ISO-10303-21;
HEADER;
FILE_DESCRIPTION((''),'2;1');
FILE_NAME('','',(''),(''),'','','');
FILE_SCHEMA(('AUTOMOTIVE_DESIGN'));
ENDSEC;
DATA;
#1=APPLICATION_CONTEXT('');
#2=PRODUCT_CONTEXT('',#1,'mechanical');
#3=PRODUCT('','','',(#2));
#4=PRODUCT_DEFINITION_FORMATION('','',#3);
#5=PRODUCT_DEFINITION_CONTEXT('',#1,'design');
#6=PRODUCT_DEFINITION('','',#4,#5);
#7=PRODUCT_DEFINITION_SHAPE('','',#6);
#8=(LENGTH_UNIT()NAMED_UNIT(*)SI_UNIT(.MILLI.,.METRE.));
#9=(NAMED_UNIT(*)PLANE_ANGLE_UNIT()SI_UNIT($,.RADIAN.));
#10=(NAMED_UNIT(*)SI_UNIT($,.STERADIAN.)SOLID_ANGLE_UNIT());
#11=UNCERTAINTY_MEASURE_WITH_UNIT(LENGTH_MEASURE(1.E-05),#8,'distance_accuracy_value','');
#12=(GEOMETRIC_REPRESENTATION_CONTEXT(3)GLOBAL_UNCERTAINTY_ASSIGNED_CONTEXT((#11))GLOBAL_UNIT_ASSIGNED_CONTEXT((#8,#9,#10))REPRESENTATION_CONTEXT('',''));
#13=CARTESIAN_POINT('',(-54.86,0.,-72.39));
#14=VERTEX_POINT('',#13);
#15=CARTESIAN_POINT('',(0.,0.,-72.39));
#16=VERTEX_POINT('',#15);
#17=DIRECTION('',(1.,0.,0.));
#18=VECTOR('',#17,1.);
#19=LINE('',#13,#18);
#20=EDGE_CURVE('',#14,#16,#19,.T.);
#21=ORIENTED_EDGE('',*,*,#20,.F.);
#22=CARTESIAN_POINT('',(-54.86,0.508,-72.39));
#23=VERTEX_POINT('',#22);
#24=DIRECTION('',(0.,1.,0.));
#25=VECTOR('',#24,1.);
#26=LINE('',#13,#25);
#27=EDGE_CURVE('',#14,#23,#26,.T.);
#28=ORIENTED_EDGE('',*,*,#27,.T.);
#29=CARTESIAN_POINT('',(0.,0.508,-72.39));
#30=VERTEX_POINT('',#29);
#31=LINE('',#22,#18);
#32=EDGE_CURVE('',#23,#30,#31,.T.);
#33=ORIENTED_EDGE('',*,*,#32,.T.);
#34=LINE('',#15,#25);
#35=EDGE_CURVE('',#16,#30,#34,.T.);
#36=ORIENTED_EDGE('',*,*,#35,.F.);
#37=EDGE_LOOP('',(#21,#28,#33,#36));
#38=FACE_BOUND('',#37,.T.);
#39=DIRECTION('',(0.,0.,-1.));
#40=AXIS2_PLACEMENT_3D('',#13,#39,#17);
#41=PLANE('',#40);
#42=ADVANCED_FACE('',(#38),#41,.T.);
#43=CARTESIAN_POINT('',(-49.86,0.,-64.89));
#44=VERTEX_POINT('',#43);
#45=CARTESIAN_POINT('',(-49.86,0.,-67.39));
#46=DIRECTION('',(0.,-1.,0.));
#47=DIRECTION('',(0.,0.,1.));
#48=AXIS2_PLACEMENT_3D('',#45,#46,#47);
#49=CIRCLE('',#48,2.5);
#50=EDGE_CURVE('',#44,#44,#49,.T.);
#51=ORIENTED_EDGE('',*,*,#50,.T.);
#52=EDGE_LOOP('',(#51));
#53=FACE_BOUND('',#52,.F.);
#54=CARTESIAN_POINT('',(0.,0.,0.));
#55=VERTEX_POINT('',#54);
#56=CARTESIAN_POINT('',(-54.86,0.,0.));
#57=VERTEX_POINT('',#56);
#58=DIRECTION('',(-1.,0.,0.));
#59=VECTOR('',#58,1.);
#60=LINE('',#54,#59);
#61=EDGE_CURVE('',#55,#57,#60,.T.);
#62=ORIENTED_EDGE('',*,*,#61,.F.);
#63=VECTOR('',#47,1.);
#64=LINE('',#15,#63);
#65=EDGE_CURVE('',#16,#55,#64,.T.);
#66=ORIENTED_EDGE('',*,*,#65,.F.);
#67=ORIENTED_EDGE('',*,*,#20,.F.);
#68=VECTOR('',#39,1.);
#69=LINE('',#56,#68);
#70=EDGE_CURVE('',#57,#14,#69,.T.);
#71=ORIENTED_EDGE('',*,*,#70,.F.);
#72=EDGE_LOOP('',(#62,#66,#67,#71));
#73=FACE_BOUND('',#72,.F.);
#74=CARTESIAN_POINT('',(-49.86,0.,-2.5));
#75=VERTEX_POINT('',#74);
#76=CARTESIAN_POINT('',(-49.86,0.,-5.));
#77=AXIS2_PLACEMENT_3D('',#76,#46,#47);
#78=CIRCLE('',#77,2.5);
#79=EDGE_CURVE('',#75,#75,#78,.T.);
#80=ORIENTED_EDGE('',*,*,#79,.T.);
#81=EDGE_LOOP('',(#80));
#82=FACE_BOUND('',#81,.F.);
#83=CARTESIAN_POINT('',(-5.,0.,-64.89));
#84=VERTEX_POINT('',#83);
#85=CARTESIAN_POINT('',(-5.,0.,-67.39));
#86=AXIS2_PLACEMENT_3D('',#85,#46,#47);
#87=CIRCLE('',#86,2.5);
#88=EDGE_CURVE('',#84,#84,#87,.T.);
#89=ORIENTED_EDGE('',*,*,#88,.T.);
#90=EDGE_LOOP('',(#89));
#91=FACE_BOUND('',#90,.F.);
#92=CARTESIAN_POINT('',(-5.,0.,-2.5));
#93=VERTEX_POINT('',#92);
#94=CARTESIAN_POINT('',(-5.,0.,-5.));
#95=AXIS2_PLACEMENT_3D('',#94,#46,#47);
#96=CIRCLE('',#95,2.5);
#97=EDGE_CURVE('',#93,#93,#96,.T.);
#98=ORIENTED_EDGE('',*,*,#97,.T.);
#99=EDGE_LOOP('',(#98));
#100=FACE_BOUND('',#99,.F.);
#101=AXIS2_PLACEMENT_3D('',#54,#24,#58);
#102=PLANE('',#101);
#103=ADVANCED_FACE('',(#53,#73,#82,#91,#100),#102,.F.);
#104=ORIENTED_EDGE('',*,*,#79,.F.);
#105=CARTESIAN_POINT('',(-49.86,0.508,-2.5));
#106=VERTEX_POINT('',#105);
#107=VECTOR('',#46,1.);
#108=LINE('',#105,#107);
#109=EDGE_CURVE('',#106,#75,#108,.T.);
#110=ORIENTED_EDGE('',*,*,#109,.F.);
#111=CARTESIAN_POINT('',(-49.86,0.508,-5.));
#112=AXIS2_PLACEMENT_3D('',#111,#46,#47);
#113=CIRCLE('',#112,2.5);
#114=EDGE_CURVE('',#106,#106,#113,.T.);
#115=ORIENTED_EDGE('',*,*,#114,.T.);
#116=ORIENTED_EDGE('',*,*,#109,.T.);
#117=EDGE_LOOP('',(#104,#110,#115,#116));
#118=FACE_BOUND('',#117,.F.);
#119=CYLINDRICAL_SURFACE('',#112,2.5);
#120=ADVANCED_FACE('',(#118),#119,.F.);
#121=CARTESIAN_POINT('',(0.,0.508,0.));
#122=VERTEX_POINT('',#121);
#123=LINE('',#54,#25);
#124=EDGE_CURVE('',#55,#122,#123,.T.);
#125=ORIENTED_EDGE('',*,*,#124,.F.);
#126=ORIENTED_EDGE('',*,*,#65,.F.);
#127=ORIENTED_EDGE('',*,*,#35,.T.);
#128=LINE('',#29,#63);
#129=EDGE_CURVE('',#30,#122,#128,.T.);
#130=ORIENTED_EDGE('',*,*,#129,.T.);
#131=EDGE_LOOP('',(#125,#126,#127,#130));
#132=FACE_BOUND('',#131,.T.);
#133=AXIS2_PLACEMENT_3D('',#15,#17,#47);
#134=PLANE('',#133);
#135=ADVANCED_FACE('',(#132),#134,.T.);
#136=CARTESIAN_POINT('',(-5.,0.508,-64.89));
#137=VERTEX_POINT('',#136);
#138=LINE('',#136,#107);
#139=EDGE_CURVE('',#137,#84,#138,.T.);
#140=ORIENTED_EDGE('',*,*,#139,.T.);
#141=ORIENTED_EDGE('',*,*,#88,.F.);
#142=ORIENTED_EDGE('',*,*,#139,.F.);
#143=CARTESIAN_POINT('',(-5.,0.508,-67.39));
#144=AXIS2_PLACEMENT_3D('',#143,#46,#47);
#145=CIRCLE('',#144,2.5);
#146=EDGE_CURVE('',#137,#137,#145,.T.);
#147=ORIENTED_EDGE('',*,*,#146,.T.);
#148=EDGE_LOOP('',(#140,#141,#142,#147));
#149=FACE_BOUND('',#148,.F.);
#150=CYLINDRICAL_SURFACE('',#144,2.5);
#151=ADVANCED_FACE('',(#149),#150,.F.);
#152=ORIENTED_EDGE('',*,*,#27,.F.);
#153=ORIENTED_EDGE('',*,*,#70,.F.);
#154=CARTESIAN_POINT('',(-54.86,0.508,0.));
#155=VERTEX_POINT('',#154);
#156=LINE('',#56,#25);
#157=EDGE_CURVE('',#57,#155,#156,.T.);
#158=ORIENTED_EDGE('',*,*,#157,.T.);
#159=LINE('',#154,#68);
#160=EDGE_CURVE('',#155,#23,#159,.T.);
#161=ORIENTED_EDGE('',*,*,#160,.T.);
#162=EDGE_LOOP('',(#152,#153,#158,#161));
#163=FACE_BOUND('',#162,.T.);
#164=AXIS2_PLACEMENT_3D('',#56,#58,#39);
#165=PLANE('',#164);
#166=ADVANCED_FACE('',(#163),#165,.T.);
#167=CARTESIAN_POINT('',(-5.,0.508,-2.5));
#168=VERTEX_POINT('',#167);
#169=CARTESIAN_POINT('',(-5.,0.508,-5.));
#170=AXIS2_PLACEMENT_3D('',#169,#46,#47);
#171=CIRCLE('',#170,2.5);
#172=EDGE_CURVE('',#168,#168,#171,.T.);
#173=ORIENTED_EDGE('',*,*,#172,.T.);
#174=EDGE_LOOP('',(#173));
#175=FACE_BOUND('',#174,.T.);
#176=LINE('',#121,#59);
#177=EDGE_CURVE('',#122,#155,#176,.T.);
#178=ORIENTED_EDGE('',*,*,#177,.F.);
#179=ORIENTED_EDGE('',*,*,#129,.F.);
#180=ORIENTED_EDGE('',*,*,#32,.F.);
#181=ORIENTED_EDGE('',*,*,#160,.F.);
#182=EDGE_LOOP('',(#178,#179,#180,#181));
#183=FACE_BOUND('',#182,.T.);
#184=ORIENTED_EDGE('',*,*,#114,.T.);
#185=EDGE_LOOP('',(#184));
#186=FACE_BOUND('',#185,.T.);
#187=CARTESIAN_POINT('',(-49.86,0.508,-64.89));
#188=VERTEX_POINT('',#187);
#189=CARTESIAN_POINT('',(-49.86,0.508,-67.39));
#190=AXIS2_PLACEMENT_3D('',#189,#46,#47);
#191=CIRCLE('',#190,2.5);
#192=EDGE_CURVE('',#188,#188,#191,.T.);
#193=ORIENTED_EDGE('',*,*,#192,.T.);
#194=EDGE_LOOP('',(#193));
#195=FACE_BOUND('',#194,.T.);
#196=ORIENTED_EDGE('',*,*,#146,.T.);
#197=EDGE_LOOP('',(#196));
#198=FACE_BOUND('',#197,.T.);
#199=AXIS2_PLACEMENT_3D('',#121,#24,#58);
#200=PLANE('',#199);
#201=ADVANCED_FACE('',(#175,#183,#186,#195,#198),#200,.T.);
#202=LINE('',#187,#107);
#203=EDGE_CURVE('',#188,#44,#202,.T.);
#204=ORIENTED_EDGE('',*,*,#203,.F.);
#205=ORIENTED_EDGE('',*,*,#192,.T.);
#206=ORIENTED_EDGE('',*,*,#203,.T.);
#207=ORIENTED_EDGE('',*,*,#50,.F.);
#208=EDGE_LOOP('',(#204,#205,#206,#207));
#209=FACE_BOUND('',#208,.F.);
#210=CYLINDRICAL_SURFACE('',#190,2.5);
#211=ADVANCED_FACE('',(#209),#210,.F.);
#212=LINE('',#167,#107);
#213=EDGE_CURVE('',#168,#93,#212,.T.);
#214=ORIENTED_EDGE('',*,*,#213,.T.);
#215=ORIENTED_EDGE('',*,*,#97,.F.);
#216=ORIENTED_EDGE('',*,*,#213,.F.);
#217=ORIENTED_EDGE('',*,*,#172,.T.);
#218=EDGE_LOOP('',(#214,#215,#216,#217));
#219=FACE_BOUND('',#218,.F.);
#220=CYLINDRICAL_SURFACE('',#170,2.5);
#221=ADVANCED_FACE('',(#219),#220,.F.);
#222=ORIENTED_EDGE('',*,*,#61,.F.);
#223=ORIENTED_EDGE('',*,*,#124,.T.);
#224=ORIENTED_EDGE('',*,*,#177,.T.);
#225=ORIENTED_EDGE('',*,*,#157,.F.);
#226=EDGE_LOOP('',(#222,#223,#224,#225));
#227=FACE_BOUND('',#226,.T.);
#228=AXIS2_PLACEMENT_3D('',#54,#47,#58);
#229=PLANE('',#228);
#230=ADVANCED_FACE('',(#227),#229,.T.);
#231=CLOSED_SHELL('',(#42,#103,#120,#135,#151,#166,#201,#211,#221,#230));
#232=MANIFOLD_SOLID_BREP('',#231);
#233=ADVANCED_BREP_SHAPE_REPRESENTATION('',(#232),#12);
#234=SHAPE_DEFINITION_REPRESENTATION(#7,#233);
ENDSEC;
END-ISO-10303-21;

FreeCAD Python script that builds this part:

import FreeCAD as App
import Part
import Sketcher
Q = App.Units.Quantity


def add_polygon(sketch, points):
    """Adds a closed chain of lines whose ends are joined by coincident constraints."""
    first, n = sketch.GeometryCount, len(points)
    for a, b in zip(points, points[1:] + points[:1]):
        sketch.addGeometry(Part.LineSegment(App.Vector(*a, 0), App.Vector(*b, 0)), False)
    for i in range(n):
        sketch.addConstraint(Sketcher.Constraint("Coincident", first + i, 2, first + (i + 1) % n, 1))

doc = App.newDocument("Part")
body = doc.addObject("PartDesign::Body", "Body")

sketch1 = doc.addObject("Sketcher::SketchObject", "Sketch")
body.addObject(sketch1)
sketch1.AttachmentSupport = (doc.XZ_Plane, [""])
sketch1.MapMode = "FlatFace"
add_polygon(sketch1, [(-54.86, 0), (0, 0), (0, -72.39), (-54.86, -72.39)])
sketch1.addConstraint([
    Sketcher.Constraint("Horizontal", 0),
    Sketcher.Constraint("Vertical", 1),
    Sketcher.Constraint("Horizontal", 2),
    Sketcher.Constraint("Vertical", 3),
    Sketcher.Constraint("Coincident", 0, 2, -1, 1),
    Sketcher.Constraint("DistanceY", 1, 2, 1, 1, Q("2.85 in")),
    Sketcher.Constraint("DistanceX", 0, 1, 0, 2, Q("54.86 mm")),
])
pad1 = doc.addObject("PartDesign::Pad", "Pad")
body.addObject(pad1)
pad1.Profile = sketch1
pad1.Length = Q("0.02 in")
pad1.Reversed = True

sketch2 = doc.addObject("Sketcher::SketchObject", "Sketch001")
body.addObject(sketch2)
sketch2.AttachmentSupport = (doc.XZ_Plane, [""])
sketch2.MapMode = "FlatFace"
sketch2.AttachmentOffset = App.Placement(App.Vector(0, 0, -0.02 * 25.4), App.Rotation())
sketch2.addGeometry([
    Part.Circle(App.Vector(-49.86, -67.39, 0), App.Vector(0, 0, 1), 2.5),
    Part.Circle(App.Vector(-49.86, -5, 0), App.Vector(0, 0, 1), 2.5),
    Part.Circle(App.Vector(-5, -5, 0), App.Vector(0, 0, 1), 2.5),
    Part.Circle(App.Vector(-5, -67.39, 0), App.Vector(0, 0, 1), 2.5),
], False)
sketch2.addConstraint([
    Sketcher.Constraint("Equal", 0, 1),
    Sketcher.Constraint("Equal", 1, 2),
    Sketcher.Constraint("Equal", 2, 3),
    Sketcher.Constraint("Horizontal", 1, 3, 2, 3),
    Sketcher.Constraint("Horizontal", 0, 3, 3, 3),
    Sketcher.Constraint("Vertical", 0, 3, 1, 3),
    Sketcher.Constraint("Vertical", 2, 3, 3, 3),
    Sketcher.Constraint("Diameter", 0, Q("5 mm")),
    Sketcher.Constraint("DistanceX", 0, 3, -1, 1, Q("1.963 in")),
    Sketcher.Constraint("DistanceY", 0, 3, 1, 3, Q("2.4563 in")),
    Sketcher.Constraint("DistanceY", 0, 3, -1, 1, Q("67.39 mm")),
    Sketcher.Constraint("DistanceX", 2, 3, -1, 1, Q("5 mm")),
])
doc.recompute()
hole = doc.addObject("PartDesign::Hole", "Hole")
body.addObject(hole)
hole.Profile = sketch2
hole.ThreadType = "None"
hole.Diameter = 5
hole.DepthType = "ThroughAll"
hole.Reversed = True

doc.recompute()
